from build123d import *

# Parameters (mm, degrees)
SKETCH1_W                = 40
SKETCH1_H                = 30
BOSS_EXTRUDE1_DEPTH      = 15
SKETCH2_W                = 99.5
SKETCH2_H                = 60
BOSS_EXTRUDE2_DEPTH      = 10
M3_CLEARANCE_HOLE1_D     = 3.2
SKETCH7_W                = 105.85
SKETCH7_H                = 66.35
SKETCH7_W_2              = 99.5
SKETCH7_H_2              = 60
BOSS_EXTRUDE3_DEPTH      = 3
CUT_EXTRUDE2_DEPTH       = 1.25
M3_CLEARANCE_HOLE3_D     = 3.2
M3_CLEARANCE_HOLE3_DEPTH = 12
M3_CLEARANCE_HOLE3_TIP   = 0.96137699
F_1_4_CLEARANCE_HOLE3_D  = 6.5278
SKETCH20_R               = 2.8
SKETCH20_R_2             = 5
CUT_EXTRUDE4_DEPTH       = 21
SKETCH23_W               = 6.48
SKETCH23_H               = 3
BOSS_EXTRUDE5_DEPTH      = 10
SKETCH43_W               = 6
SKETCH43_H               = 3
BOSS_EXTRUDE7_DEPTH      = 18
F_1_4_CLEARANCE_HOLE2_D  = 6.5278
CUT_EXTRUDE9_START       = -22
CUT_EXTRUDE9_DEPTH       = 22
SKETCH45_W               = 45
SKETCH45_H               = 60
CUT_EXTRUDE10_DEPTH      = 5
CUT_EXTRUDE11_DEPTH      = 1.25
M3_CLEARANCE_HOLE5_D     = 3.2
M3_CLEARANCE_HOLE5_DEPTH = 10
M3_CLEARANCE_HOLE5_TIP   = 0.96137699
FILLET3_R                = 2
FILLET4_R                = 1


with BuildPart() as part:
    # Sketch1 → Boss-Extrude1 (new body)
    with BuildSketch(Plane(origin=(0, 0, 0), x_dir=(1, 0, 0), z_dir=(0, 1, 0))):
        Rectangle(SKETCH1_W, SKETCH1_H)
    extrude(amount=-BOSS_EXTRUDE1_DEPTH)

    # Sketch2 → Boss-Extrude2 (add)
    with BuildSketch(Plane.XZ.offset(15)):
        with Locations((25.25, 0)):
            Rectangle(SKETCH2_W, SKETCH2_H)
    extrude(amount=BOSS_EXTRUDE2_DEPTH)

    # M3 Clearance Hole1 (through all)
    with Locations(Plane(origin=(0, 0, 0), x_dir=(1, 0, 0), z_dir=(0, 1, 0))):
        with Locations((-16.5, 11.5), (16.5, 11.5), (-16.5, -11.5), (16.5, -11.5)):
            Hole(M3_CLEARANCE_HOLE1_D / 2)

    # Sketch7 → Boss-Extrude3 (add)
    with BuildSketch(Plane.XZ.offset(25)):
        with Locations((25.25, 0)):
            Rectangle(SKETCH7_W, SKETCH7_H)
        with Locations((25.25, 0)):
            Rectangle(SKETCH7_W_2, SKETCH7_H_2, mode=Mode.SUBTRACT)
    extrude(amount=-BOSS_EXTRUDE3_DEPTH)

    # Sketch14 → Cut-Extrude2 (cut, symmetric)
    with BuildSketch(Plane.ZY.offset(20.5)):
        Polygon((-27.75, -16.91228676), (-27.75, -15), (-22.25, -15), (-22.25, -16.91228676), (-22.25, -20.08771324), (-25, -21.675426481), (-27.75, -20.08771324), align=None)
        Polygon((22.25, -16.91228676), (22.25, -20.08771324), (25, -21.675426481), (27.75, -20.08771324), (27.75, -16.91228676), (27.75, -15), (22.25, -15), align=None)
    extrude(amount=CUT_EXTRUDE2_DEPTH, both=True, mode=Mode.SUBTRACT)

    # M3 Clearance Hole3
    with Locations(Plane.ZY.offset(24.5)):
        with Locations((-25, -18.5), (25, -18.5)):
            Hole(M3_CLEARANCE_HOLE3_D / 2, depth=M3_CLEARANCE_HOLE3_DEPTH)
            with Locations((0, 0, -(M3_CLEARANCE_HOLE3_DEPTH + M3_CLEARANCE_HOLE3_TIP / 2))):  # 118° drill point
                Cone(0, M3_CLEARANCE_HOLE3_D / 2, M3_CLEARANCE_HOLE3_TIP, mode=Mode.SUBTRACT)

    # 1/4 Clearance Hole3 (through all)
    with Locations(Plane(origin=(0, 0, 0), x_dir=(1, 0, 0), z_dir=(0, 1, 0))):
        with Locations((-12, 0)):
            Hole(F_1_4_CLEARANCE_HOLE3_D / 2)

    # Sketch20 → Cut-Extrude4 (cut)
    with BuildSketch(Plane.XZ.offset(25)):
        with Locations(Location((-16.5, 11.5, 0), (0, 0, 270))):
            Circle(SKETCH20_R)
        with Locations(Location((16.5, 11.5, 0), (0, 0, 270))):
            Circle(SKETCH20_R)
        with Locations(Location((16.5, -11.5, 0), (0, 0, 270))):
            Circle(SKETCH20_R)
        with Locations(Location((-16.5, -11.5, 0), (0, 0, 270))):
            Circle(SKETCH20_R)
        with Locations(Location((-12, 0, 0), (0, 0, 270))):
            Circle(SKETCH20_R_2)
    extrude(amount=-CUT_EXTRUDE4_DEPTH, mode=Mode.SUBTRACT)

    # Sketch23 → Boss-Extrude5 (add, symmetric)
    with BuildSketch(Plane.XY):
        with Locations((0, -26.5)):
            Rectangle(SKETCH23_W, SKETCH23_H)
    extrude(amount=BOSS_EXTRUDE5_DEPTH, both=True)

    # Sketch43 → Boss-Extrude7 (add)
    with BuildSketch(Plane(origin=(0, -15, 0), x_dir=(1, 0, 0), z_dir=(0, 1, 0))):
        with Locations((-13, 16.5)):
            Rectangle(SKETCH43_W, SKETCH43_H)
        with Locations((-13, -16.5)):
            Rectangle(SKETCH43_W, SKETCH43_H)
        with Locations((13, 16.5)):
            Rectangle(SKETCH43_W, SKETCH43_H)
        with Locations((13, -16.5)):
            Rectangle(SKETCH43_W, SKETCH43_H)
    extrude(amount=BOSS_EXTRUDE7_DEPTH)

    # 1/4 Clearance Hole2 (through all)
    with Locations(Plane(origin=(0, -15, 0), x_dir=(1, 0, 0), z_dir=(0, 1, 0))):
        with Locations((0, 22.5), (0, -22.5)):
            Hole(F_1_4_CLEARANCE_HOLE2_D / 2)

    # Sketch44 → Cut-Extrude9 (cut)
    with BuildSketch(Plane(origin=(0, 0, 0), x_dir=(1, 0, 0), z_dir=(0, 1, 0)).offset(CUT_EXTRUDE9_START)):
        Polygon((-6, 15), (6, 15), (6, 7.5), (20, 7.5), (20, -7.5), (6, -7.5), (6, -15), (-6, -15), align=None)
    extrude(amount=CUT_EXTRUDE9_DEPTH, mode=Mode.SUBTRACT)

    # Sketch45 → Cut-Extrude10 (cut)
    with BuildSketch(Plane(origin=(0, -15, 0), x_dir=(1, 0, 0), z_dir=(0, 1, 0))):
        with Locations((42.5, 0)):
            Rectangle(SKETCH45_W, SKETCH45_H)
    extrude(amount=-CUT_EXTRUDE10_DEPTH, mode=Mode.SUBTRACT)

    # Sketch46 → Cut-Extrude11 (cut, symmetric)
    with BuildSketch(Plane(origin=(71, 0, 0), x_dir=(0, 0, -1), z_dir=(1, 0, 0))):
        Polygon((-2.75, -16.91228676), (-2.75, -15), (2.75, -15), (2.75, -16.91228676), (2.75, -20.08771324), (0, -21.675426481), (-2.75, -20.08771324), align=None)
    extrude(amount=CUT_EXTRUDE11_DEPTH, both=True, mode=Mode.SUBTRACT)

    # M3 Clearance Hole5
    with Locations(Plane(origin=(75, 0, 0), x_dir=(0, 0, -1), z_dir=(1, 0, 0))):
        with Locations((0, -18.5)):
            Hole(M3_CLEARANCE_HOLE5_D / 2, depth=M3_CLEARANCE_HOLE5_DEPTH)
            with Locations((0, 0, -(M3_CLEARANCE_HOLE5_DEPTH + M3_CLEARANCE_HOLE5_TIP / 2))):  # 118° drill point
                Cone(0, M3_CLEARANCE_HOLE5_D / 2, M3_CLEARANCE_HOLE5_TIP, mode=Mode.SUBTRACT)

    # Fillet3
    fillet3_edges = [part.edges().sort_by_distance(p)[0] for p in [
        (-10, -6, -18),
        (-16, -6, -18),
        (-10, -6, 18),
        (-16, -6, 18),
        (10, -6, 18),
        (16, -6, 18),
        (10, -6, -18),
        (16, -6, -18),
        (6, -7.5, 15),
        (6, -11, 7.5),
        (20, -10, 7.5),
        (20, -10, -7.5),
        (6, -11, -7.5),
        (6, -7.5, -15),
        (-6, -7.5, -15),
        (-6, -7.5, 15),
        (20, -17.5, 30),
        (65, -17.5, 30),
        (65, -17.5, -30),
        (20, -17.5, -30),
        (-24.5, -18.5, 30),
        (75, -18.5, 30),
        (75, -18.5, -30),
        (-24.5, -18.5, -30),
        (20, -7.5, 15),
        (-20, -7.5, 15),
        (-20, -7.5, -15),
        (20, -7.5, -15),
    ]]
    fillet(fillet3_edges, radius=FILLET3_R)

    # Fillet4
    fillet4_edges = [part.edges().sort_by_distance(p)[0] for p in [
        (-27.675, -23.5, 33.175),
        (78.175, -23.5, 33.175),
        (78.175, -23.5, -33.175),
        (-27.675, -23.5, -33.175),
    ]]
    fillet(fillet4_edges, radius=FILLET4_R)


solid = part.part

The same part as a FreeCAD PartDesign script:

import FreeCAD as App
import Part
import Sketcher
Q = App.Units.Quantity


def edges_at(feature, points):
    """Names of the edges that pass closest to the given points."""
    edges = feature.Shape.Edges
    near = lambda p: min(range(len(edges)), key=lambda i: edges[i].distToShape(Part.Vertex(*p))[0])
    return sorted({f"Edge{near(p) + 1}" for p in points})

doc = App.newDocument("Part")
body = doc.addObject("PartDesign::Body", "Body")

sketch1 = doc.addObject("Sketcher::SketchObject", "Sketch")
body.addObject(sketch1)
sketch1.AttachmentSupport = (doc.XZ_Plane, [""])
sketch1.MapMode = "FlatFace"
sketch1.addGeometry(Part.LineSegment(App.Vector(-20, -15, 0), App.Vector(-20, 15, 0)), False)
sketch1.addGeometry(Part.LineSegment(App.Vector(-20, 15, 0), App.Vector(20, 15, 0)), False)
sketch1.addGeometry(Part.LineSegment(App.Vector(20, 15, 0), App.Vector(20, -15, 0)), False)
sketch1.addGeometry(Part.LineSegment(App.Vector(20, -15, 0), App.Vector(-20, -15, 0)), False)
sketch1.addConstraint(Sketcher.Constraint("Coincident", 0, 2, 1, 1))
sketch1.addConstraint(Sketcher.Constraint("Coincident", 1, 2, 2, 1))
sketch1.addConstraint(Sketcher.Constraint("Coincident", 2, 2, 3, 1))
sketch1.addConstraint(Sketcher.Constraint("Coincident", 3, 2, 0, 1))
sketch1.addConstraint(Sketcher.Constraint("Vertical", 0))
sketch1.addConstraint(Sketcher.Constraint("Horizontal", 1))
sketch1.addConstraint(Sketcher.Constraint("Vertical", 2))
sketch1.addConstraint(Sketcher.Constraint("Horizontal", 3))
sketch1.addConstraint(Sketcher.Constraint("Symmetric", 0, 2, 2, 2, -1, 1))
sketch1.addConstraint(Sketcher.Constraint("DistanceX", 1, 1, 1, 2, 40.0))
sketch1.addConstraint(Sketcher.Constraint("DistanceY", 0, 1, 0, 2, 30.0))
pad1 = doc.addObject("PartDesign::Pad", "Pad")
body.addObject(pad1)
pad1.Profile = sketch1
pad1.Length = 15

sketch2 = doc.addObject("Sketcher::SketchObject", "Sketch001")
body.addObject(sketch2)
sketch2.AttachmentSupport = (doc.XZ_Plane, [""])
sketch2.MapMode = "FlatFace"
sketch2.AttachmentOffset = App.Placement(App.Vector(0, 0, 15), App.Rotation())
sketch2.addGeometry(Part.LineSegment(App.Vector(-24.5, 30, 0), App.Vector(-24.5, -30, 0)), False)
sketch2.addGeometry(Part.LineSegment(App.Vector(-24.5, -30, 0), App.Vector(75, -30, 0)), False)
sketch2.addGeometry(Part.LineSegment(App.Vector(75, -30, 0), App.Vector(75, 30, 0)), False)
sketch2.addGeometry(Part.LineSegment(App.Vector(75, 30, 0), App.Vector(-24.5, 30, 0)), False)
sketch2.addConstraint(Sketcher.Constraint("Coincident", 0, 2, 1, 1))
sketch2.addConstraint(Sketcher.Constraint("Coincident", 1, 2, 2, 1))
sketch2.addConstraint(Sketcher.Constraint("Coincident", 2, 2, 3, 1))
sketch2.addConstraint(Sketcher.Constraint("Coincident", 3, 2, 0, 1))
sketch2.addConstraint(Sketcher.Constraint("Vertical", 0))
sketch2.addConstraint(Sketcher.Constraint("Horizontal", 1))
sketch2.addConstraint(Sketcher.Constraint("Vertical", 2))
sketch2.addConstraint(Sketcher.Constraint("Horizontal", 3))
sketch2.addConstraint(Sketcher.Constraint("DistanceY", 0, 2, 0, 1, 60.0))
sketch2.addConstraint(Sketcher.Constraint("DistanceX", 1, 1, 1, 2, 99.5))
sketch2.addConstraint(Sketcher.Constraint("DistanceY", 0, 2, -1, 1, 30.0))
sketch2.addConstraint(Sketcher.Constraint("DistanceX", -1, 1, 1, 2, 75.0))
pad2 = doc.addObject("PartDesign::Pad", "Pad001")
body.addObject(pad2)
pad2.Profile = sketch2
pad2.Length = 10

sketch3 = doc.addObject("Sketcher::SketchObject", "Sketch002")
body.addObject(sketch3)
sketch3.AttachmentSupport = (doc.XZ_Plane, [""])
sketch3.MapMode = "FlatFace"
sketch3.addGeometry(Part.Circle(App.Vector(-16.5, -11.5, 0), App.Vector(0, 0, 1), 1.6), False)
sketch3.addGeometry(Part.Circle(App.Vector(16.5, -11.5, 0), App.Vector(0, 0, 1), 1.6), False)
sketch3.addGeometry(Part.Circle(App.Vector(-16.5, 11.5, 0), App.Vector(0, 0, 1), 1.6), False)
sketch3.addGeometry(Part.Circle(App.Vector(16.5, 11.5, 0), App.Vector(0, 0, 1), 1.6), False)
sketch3.addConstraint(Sketcher.Constraint("Equal", 0, 1))
sketch3.addConstraint(Sketcher.Constraint("Equal", 1, 2))
sketch3.addConstraint(Sketcher.Constraint("Equal", 2, 3))
sketch3.addConstraint(Sketcher.Constraint("Symmetric", 1, 3, 2, 3, -1, 1))
sketch3.addConstraint(Sketcher.Constraint("Symmetric", 0, 3, 3, 3, -1, 1))
sketch3.addConstraint(Sketcher.Constraint("Symmetric", 0, 3, 1, 3, -2))
sketch3.addConstraint(Sketcher.Constraint("Diameter", 0, 3.2))
sketch3.addConstraint(Sketcher.Constraint("DistanceX", 0, 3, 1, 3, 33.0))
sketch3.addConstraint(Sketcher.Constraint("DistanceY", 0, 3, 2, 3, 23.0))
doc.recompute()
hole = doc.addObject("PartDesign::Hole", "Hole")
body.addObject(hole)
hole.Profile = sketch3
hole.ThreadType = "None"
hole.Diameter = 3.2
hole.DepthType = "ThroughAll"
hole.Reversed = True

sketch4 = doc.addObject("Sketcher::SketchObject", "Sketch003")
body.addObject(sketch4)
sketch4.AttachmentSupport = (doc.XZ_Plane, [""])
sketch4.MapMode = "FlatFace"
sketch4.AttachmentOffset = App.Placement(App.Vector(0, 0, 25), App.Rotation())
sketch4.addGeometry(Part.LineSegment(App.Vector(-27.675, 33.175, 0), App.Vector(-27.675, -33.175, 0)), False)
sketch4.addGeometry(Part.LineSegment(App.Vector(-27.675, -33.175, 0), App.Vector(78.175, -33.175, 0)), False)
sketch4.addGeometry(Part.LineSegment(App.Vector(78.175, -33.175, 0), App.Vector(78.175, 33.175, 0)), False)
sketch4.addGeometry(Part.LineSegment(App.Vector(78.175, 33.175, 0), App.Vector(-27.675, 33.175, 0)), False)
sketch4.addGeometry(Part.LineSegment(App.Vector(75, -30, 0), App.Vector(-24.5, -30, 0)), False)
sketch4.addGeometry(Part.LineSegment(App.Vector(-24.5, -30, 0), App.Vector(-24.5, 30, 0)), False)
sketch4.addGeometry(Part.LineSegment(App.Vector(-24.5, 30, 0), App.Vector(75, 30, 0)), False)
sketch4.addGeometry(Part.LineSegment(App.Vector(75, 30, 0), App.Vector(75, -30, 0)), False)
sketch4.addConstraint(Sketcher.Constraint("Coincident", 0, 2, 1, 1))
sketch4.addConstraint(Sketcher.Constraint("Coincident", 1, 2, 2, 1))
sketch4.addConstraint(Sketcher.Constraint("Coincident", 2, 2, 3, 1))
sketch4.addConstraint(Sketcher.Constraint("Coincident", 3, 2, 0, 1))
sketch4.addConstraint(Sketcher.Constraint("Coincident", 4, 2, 5, 1))
sketch4.addConstraint(Sketcher.Constraint("Coincident", 5, 2, 6, 1))
sketch4.addConstraint(Sketcher.Constraint("Coincident", 6, 2, 7, 1))
sketch4.addConstraint(Sketcher.Constraint("Coincident", 7, 2, 4, 1))
sketch4.addConstraint(Sketcher.Constraint("Vertical", 0))
sketch4.addConstraint(Sketcher.Constraint("Horizontal", 1))
sketch4.addConstraint(Sketcher.Constraint("Vertical", 2))
sketch4.addConstraint(Sketcher.Constraint("Horizontal", 3))
sketch4.addConstraint(Sketcher.Constraint("Horizontal", 4))
sketch4.addConstraint(Sketcher.Constraint("Vertical", 5))
sketch4.addConstraint(Sketcher.Constraint("Horizontal", 6))
sketch4.addConstraint(Sketcher.Constraint("Vertical", 7))
sketch4.addConstraint(Sketcher.Constraint("DistanceY", 5, 1, 5, 2, 60.0))
sketch4.addConstraint(Sketcher.Constraint("DistanceX", 4, 2, 4, 1, 99.5))
sketch4.addConstraint(Sketcher.Constraint("DistanceY", 4, 2, -1, 1, 30.0))
sketch4.addConstraint(Sketcher.Constraint("DistanceX", -1, 1, 6, 2, 75.0))
sketch4.addConstraint(Sketcher.Constraint("DistanceX", 1, 1, 1, 2, 105.85))
sketch4.addConstraint(Sketcher.Constraint("DistanceY", 0, 2, 0, 1, 66.35))
sketch4.addConstraint(Sketcher.Constraint("DistanceX", 0, 2, -1, 1, 27.675))
sketch4.addConstraint(Sketcher.Constraint("DistanceY", 0, 2, -1, 1, 33.175))
pad3 = doc.addObject("PartDesign::Pad", "Pad002")
body.addObject(pad3)
pad3.Profile = sketch4
pad3.Length = 3
pad3.Reversed = True

sketch5 = doc.addObject("Sketcher::SketchObject", "Sketch004")
body.addObject(sketch5)
sketch5.AttachmentSupport = (doc.YZ_Plane, [""])
sketch5.MapMode = "FlatFace"
sketch5.AttachmentOffset = App.Placement(App.Vector(0, 0, -20.5), App.Rotation())
sketch5.addGeometry(Part.LineSegment(App.Vector(-15, -27.75, 0), App.Vector(-20.087713, -27.75, 0)), False)
sketch5.addGeometry(Part.LineSegment(App.Vector(-20.087713, -27.75, 0), App.Vector(-21.675426, -25, 0)), False)
sketch5.addGeometry(Part.LineSegment(App.Vector(-21.675426, -25, 0), App.Vector(-20.087713, -22.25, 0)), False)
sketch5.addGeometry(Part.LineSegment(App.Vector(-20.087713, -22.25, 0), App.Vector(-15, -22.25, 0)), False)
sketch5.addGeometry(Part.LineSegment(App.Vector(-15, -22.25, 0), App.Vector(-15, -27.75, 0)), False)
sketch5.addGeometry(Part.LineSegment(App.Vector(-20.087713, 22.25, 0), App.Vector(-21.675426, 25, 0)), False)
sketch5.addGeometry(Part.LineSegment(App.Vector(-21.675426, 25, 0), App.Vector(-20.087713, 27.75, 0)), False)
sketch5.addGeometry(Part.LineSegment(App.Vector(-20.087713, 27.75, 0), App.Vector(-15, 27.75, 0)), False)
sketch5.addGeometry(Part.LineSegment(App.Vector(-15, 27.75, 0), App.Vector(-15, 22.25, 0)), False)
sketch5.addGeometry(Part.LineSegment(App.Vector(-15, 22.25, 0), App.Vector(-20.087713, 22.25, 0)), False)
sketch5.addConstraint(Sketcher.Constraint("Coincident", 0, 2, 1, 1))
sketch5.addConstraint(Sketcher.Constraint("Coincident", 1, 2, 2, 1))
sketch5.addConstraint(Sketcher.Constraint("Coincident", 2, 2, 3, 1))
sketch5.addConstraint(Sketcher.Constraint("Coincident", 3, 2, 4, 1))
sketch5.addConstraint(Sketcher.Constraint("Coincident", 4, 2, 0, 1))
sketch5.addConstraint(Sketcher.Constraint("Coincident", 5, 2, 6, 1))
sketch5.addConstraint(Sketcher.Constraint("Coincident", 6, 2, 7, 1))
sketch5.addConstraint(Sketcher.Constraint("Coincident", 7, 2, 8, 1))
sketch5.addConstraint(Sketcher.Constraint("Coincident", 8, 2, 9, 1))
sketch5.addConstraint(Sketcher.Constraint("Coincident", 9, 2, 5, 1))
sketch5.addConstraint(Sketcher.Constraint("Horizontal", 0))
sketch5.addConstraint(Sketcher.Constraint("Horizontal", 3))
sketch5.addConstraint(Sketcher.Constraint("Vertical", 4))
sketch5.addConstraint(Sketcher.Constraint("Horizontal", 7))
sketch5.addConstraint(Sketcher.Constraint("Vertical", 8))
sketch5.addConstraint(Sketcher.Constraint("Horizontal", 9))
sketch5.addConstraint(Sketcher.Constraint("Symmetric", 1, 2, 5, 2, -1))
sketch5.addConstraint(Sketcher.Constraint("Symmetric", 0, 2, 6, 2, -1))
sketch5.addConstraint(Sketcher.Constraint("Symmetric", 3, 2, 8, 2, -1))
sketch5.addConstraint(Sketcher.Constraint("Parallel", 1, 5))
sketch5.addConstraint(Sketcher.Constraint("Parallel", 2, 6))
sketch5.addConstraint(Sketcher.Constraint("Vertical", 0, 2, 2, 2))
sketch5.addConstraint(Sketcher.Constraint("Angle", 1, Q("120 deg")))
sketch5.addConstraint(Sketcher.Constraint("DistanceY", 4, 2, 4, 1, 5.5))
sketch5.addConstraint(Sketcher.Constraint("DistanceY", 1, 2, -1, 1, 25.0))
sketch5.addConstraint(Sketcher.Constraint("DistanceX", 3, 2, -1, 1, 15.0))
sketch5.addConstraint(Sketcher.Constraint("DistanceX", 0, 2, 0, 1, 5.087713))
pocket1 = doc.addObject("PartDesign::Pocket", "Pocket")
body.addObject(pocket1)
pocket1.Profile = sketch5
pocket1.Length = 2.5
pocket1.Midplane = True

sketch6 = doc.addObject("Sketcher::SketchObject", "Sketch005")
body.addObject(sketch6)
sketch6.AttachmentSupport = (doc.YZ_Plane, [""])
sketch6.MapMode = "FlatFace"
sketch6.AttachmentOffset = App.Placement(App.Vector(0, 0, -24.5), App.Rotation())
sketch6.addGeometry(Part.Circle(App.Vector(-18.5, -25, 0), App.Vector(0, 0, 1), 1.6), False)
sketch6.addGeometry(Part.Circle(App.Vector(-18.5, 25, 0), App.Vector(0, 0, 1), 1.6), False)
sketch6.addConstraint(Sketcher.Constraint("Equal", 0, 1))
sketch6.addConstraint(Sketcher.Constraint("Symmetric", 0, 3, 1, 3, -1))
sketch6.addConstraint(Sketcher.Constraint("Diameter", 0, 3.2))
sketch6.addConstraint(Sketcher.Constraint("DistanceY", 0, 3, -1, 1, 25.0))
sketch6.addConstraint(Sketcher.Constraint("DistanceX", 0, 3, -1, 1, 18.5))
doc.recompute()
hole2 = doc.addObject("PartDesign::Hole", "Hole001")
body.addObject(hole2)
hole2.Profile = sketch6
hole2.ThreadType = "None"
hole2.Diameter = 3.2
hole2.DepthType = "Dimension"
hole2.Depth = 12
hole2.DrillPoint = "Angled"
hole2.DrillPointAngle = 118
hole2.Reversed = True

sketch7 = doc.addObject("Sketcher::SketchObject", "Sketch006")
body.addObject(sketch7)
sketch7.AttachmentSupport = (doc.XZ_Plane, [""])
sketch7.MapMode = "FlatFace"
sketch7.addGeometry(Part.Circle(App.Vector(-12, 0, 0), App.Vector(0, 0, 1), 3.2639), False)
sketch7.addConstraint(Sketcher.Constraint("PointOnObject", 0, 3, -1))
sketch7.addConstraint(Sketcher.Constraint("DistanceX", 0, 3, -1, 1, 12.0))
sketch7.addConstraint(Sketcher.Constraint("Diameter", 0, 6.5278))
doc.recompute()
hole3 = doc.addObject("PartDesign::Hole", "Hole002")
body.addObject(hole3)
hole3.Profile = sketch7
hole3.ThreadType = "None"
hole3.Diameter = 6.5278
hole3.DepthType = "ThroughAll"
hole3.Reversed = True

sketch8 = doc.addObject("Sketcher::SketchObject", "Sketch007")
body.addObject(sketch8)
sketch8.AttachmentSupport = (doc.XZ_Plane, [""])
sketch8.MapMode = "FlatFace"
sketch8.AttachmentOffset = App.Placement(App.Vector(0, 0, 25), App.Rotation())
sketch8.addGeometry(Part.Circle(App.Vector(-16.5, 11.5, 0), App.Vector(0, 0, 1), 2.8), False)
sketch8.addGeometry(Part.Circle(App.Vector(16.5, 11.5, 0), App.Vector(0, 0, 1), 2.8), False)
sketch8.addGeometry(Part.Circle(App.Vector(16.5, -11.5, 0), App.Vector(0, 0, 1), 2.8), False)
sketch8.addGeometry(Part.Circle(App.Vector(-16.5, -11.5, 0), App.Vector(0, 0, 1), 2.8), False)
sketch8.addGeometry(Part.Circle(App.Vector(-12, 0, 0), App.Vector(0, 0, 1), 5), False)
sketch8.addConstraint(Sketcher.Constraint("Equal", 0, 1))
sketch8.addConstraint(Sketcher.Constraint("Equal", 1, 2))
sketch8.addConstraint(Sketcher.Constraint("Equal", 2, 3))
sketch8.addConstraint(Sketcher.Constraint("Symmetric", 0, 3, 2, 3, -1, 1))
sketch8.addConstraint(Sketcher.Constraint("Symmetric", 1, 3, 3, 3, -1, 1))
sketch8.addConstraint(Sketcher.Constraint("Symmetric", 0, 3, 1, 3, -2))
sketch8.addConstraint(Sketcher.Constraint("PointOnObject", 4, 3, -1))
sketch8.addConstraint(Sketcher.Constraint("Diameter", 4, 10.0))
sketch8.addConstraint(Sketcher.Constraint("Diameter", 0, 5.6))
sketch8.addConstraint(Sketcher.Constraint("DistanceX", 4, 3, -1, 1, 12.0))
sketch8.addConstraint(Sketcher.Constraint("DistanceX", 0, 3, 1, 3, 33.0))
sketch8.addConstraint(Sketcher.Constraint("DistanceY", 2, 3, 1, 3, 23.0))
pocket2 = doc.addObject("PartDesign::Pocket", "Pocket001")
body.addObject(pocket2)
pocket2.Profile = sketch8
pocket2.Length = 21

sketch9 = doc.addObject("Sketcher::SketchObject", "Sketch008")
body.addObject(sketch9)
sketch9.AttachmentSupport = (doc.XY_Plane, [""])
sketch9.MapMode = "FlatFace"
sketch9.addGeometry(Part.LineSegment(App.Vector(-3.24, -25, 0), App.Vector(-3.24, -28, 0)), False)
sketch9.addGeometry(Part.LineSegment(App.Vector(-3.24, -28, 0), App.Vector(3.24, -28, 0)), False)
sketch9.addGeometry(Part.LineSegment(App.Vector(3.24, -28, 0), App.Vector(3.24, -25, 0)), False)
sketch9.addGeometry(Part.LineSegment(App.Vector(3.24, -25, 0), App.Vector(-3.24, -25, 0)), False)
sketch9.addConstraint(Sketcher.Constraint("Coincident", 0, 2, 1, 1))
sketch9.addConstraint(Sketcher.Constraint("Coincident", 1, 2, 2, 1))
sketch9.addConstraint(Sketcher.Constraint("Coincident", 2, 2, 3, 1))
sketch9.addConstraint(Sketcher.Constraint("Coincident", 3, 2, 0, 1))
sketch9.addConstraint(Sketcher.Constraint("Vertical", 0))
sketch9.addConstraint(Sketcher.Constraint("Horizontal", 1))
sketch9.addConstraint(Sketcher.Constraint("Vertical", 2))
sketch9.addConstraint(Sketcher.Constraint("Horizontal", 3))
sketch9.addConstraint(Sketcher.Constraint("DistanceY", 0, 2, 0, 1, 3.0))
sketch9.addConstraint(Sketcher.Constraint("DistanceY", 0, 2, -1, 1, 28.0))
sketch9.addConstraint(Sketcher.Constraint("DistanceX", 1, 1, 1, 2, 6.48))
sketch9.addConstraint(Sketcher.Constraint("DistanceX", 0, 2, -1, 1, 3.24))
pad4 = doc.addObject("PartDesign::Pad", "Pad003")
body.addObject(pad4)
pad4.Profile = sketch9
pad4.Length = 20
pad4.Midplane = True

sketch10 = doc.addObject("Sketcher::SketchObject", "Sketch009")
body.addObject(sketch10)
sketch10.AttachmentSupport = (doc.XZ_Plane, [""])
sketch10.MapMode = "FlatFace"
sketch10.AttachmentOffset = App.Placement(App.Vector(0, 0, 15), App.Rotation())
sketch10.addGeometry(Part.LineSegment(App.Vector(-16, -18, 0), App.Vector(-16, -15, 0)), False)
sketch10.addGeometry(Part.LineSegment(App.Vector(-16, -15, 0), App.Vector(-10, -15, 0)), False)
sketch10.addGeometry(Part.LineSegment(App.Vector(-10, -15, 0), App.Vector(-10, -18, 0)), False)
sketch10.addGeometry(Part.LineSegment(App.Vector(-10, -18, 0), App.Vector(-16, -18, 0)), False)
sketch10.addGeometry(Part.LineSegment(App.Vector(-16, 15, 0), App.Vector(-16, 18, 0)), False)
sketch10.addGeometry(Part.LineSegment(App.Vector(-16, 18, 0), App.Vector(-10, 18, 0)), False)
sketch10.addGeometry(Part.LineSegment(App.Vector(-10, 18, 0), App.Vector(-10, 15, 0)), False)
sketch10.addGeometry(Part.LineSegment(App.Vector(-10, 15, 0), App.Vector(-16, 15, 0)), False)
sketch10.addGeometry(Part.LineSegment(App.Vector(10, -18, 0), App.Vector(10, -15, 0)), False)
sketch10.addGeometry(Part.LineSegment(App.Vector(10, -15, 0), App.Vector(16, -15, 0)), False)
sketch10.addGeometry(Part.LineSegment(App.Vector(16, -15, 0), App.Vector(16, -18, 0)), False)
sketch10.addGeometry(Part.LineSegment(App.Vector(16, -18, 0), App.Vector(10, -18, 0)), False)
sketch10.addGeometry(Part.LineSegment(App.Vector(10, 15, 0), App.Vector(10, 18, 0)), False)
sketch10.addGeometry(Part.LineSegment(App.Vector(10, 18, 0), App.Vector(16, 18, 0)), False)
sketch10.addGeometry(Part.LineSegment(App.Vector(16, 18, 0), App.Vector(16, 15, 0)), False)
sketch10.addGeometry(Part.LineSegment(App.Vector(16, 15, 0), App.Vector(10, 15, 0)), False)
sketch10.addConstraint(Sketcher.Constraint("Coincident", 0, 2, 1, 1))
sketch10.addConstraint(Sketcher.Constraint("Coincident", 1, 2, 2, 1))
sketch10.addConstraint(Sketcher.Constraint("Coincident", 2, 2, 3, 1))
sketch10.addConstraint(Sketcher.Constraint("Coincident", 3, 2, 0, 1))
sketch10.addConstraint(Sketcher.Constraint("Coincident", 4, 2, 5, 1))
sketch10.addConstraint(Sketcher.Constraint("Coincident", 5, 2, 6, 1))
sketch10.addConstraint(Sketcher.Constraint("Coincident", 6, 2, 7, 1))
sketch10.addConstraint(Sketcher.Constraint("Coincident", 7, 2, 4, 1))
sketch10.addConstraint(Sketcher.Constraint("Coincident", 8, 2, 9, 1))
sketch10.addConstraint(Sketcher.Constraint("Coincident", 9, 2, 10, 1))
sketch10.addConstraint(Sketcher.Constraint("Coincident", 10, 2, 11, 1))
sketch10.addConstraint(Sketcher.Constraint("Coincident", 11, 2, 8, 1))
sketch10.addConstraint(Sketcher.Constraint("Coincident", 12, 2, 13, 1))
sketch10.addConstraint(Sketcher.Constraint("Coincident", 13, 2, 14, 1))
sketch10.addConstraint(Sketcher.Constraint("Coincident", 14, 2, 15, 1))
sketch10.addConstraint(Sketcher.Constraint("Coincident", 15, 2, 12, 1))
sketch10.addConstraint(Sketcher.Constraint("Vertical", 0))
sketch10.addConstraint(Sketcher.Constraint("Horizontal", 1))
sketch10.addConstraint(Sketcher.Constraint("Vertical", 2))
sketch10.addConstraint(Sketcher.Constraint("Horizontal", 3))
sketch10.addConstraint(Sketcher.Constraint("Vertical", 4))
sketch10.addConstraint(Sketcher.Constraint("Horizontal", 5))
sketch10.addConstraint(Sketcher.Constraint("Vertical", 6))
sketch10.addConstraint(Sketcher.Constraint("Horizontal", 7))
sketch10.addConstraint(Sketcher.Constraint("Vertical", 8))
sketch10.addConstraint(Sketcher.Constraint("Horizontal", 9))
sketch10.addConstraint(Sketcher.Constraint("Vertical", 10))
sketch10.addConstraint(Sketcher.Constraint("Horizontal", 11))
sketch10.addConstraint(Sketcher.Constraint("Vertical", 12))
sketch10.addConstraint(Sketcher.Constraint("Horizontal", 13))
sketch10.addConstraint(Sketcher.Constraint("Vertical", 14))
sketch10.addConstraint(Sketcher.Constraint("Horizontal", 15))
sketch10.addConstraint(Sketcher.Constraint("Symmetric", 6, 2, 8, 2, -1, 1))
sketch10.addConstraint(Sketcher.Constraint("Symmetric", 4, 2, 10, 2, -1, 1))
sketch10.addConstraint(Sketcher.Constraint("Symmetric", 2, 2, 12, 2, -1, 1))
sketch10.addConstraint(Sketcher.Constraint("Symmetric", 0, 2, 14, 2, -1, 1))
sketch10.addConstraint(Sketcher.Constraint("Symmetric", 1, 2, 8, 2, -2))
sketch10.addConstraint(Sketcher.Constraint("Symmetric", 3, 2, 10, 2, -2))
sketch10.addConstraint(Sketcher.Constraint("DistanceX", 1, 1, 1, 2, 6.0))
sketch10.addConstraint(Sketcher.Constraint("DistanceY", 0, 1, 0, 2, 3.0))
sketch10.addConstraint(Sketcher.Constraint("DistanceX", 0, 2, -1, 1, 16.0))
sketch10.addConstraint(Sketcher.Constraint("DistanceY", 0, 2, -1, 1, 15.0))
pad5 = doc.addObject("PartDesign::Pad", "Pad004")
body.addObject(pad5)
pad5.Profile = sketch10
pad5.Length = 18
pad5.Reversed = True

sketch11 = doc.addObject("Sketcher::SketchObject", "Sketch010")
body.addObject(sketch11)
sketch11.AttachmentSupport = (doc.XZ_Plane, [""])
sketch11.MapMode = "FlatFace"
sketch11.AttachmentOffset = App.Placement(App.Vector(0, 0, 15), App.Rotation())
sketch11.addGeometry(Part.Circle(App.Vector(0, -22.5, 0), App.Vector(0, 0, 1), 3.2639), False)
sketch11.addGeometry(Part.Circle(App.Vector(0, 22.5, 0), App.Vector(0, 0, 1), 3.2639), False)
sketch11.addConstraint(Sketcher.Constraint("Equal", 0, 1))
sketch11.addConstraint(Sketcher.Constraint("Symmetric", 0, 3, 1, 3, -1, 1))
sketch11.addConstraint(Sketcher.Constraint("PointOnObject", 0, 3, -2))
sketch11.addConstraint(Sketcher.Constraint("DistanceY", 0, 3, 1, 3, 45.0))
sketch11.addConstraint(Sketcher.Constraint("Diameter", 0, 6.5278))
doc.recompute()
hole4 = doc.addObject("PartDesign::Hole", "Hole003")
body.addObject(hole4)
hole4.Profile = sketch11
hole4.ThreadType = "None"
hole4.Diameter = 6.5278
hole4.DepthType = "ThroughAll"
hole4.Reversed = True

sketch12 = doc.addObject("Sketcher::SketchObject", "Sketch011")
body.addObject(sketch12)
sketch12.AttachmentSupport = (doc.XZ_Plane, [""])
sketch12.MapMode = "FlatFace"
sketch12.AttachmentOffset = App.Placement(App.Vector(0, 0, 22), App.Rotation())
sketch12.addGeometry(Part.LineSegment(App.Vector(6, -15, 0), App.Vector(-6, -15, 0)), False)
sketch12.addGeometry(Part.LineSegment(App.Vector(-6, -15, 0), App.Vector(-6, 15, 0)), False)
sketch12.addGeometry(Part.LineSegment(App.Vector(-6, 15, 0), App.Vector(6, 15, 0)), False)
sketch12.addGeometry(Part.LineSegment(App.Vector(6, 15, 0), App.Vector(6, 7.5, 0)), False)
sketch12.addGeometry(Part.LineSegment(App.Vector(6, 7.5, 0), App.Vector(20, 7.5, 0)), False)
sketch12.addGeometry(Part.LineSegment(App.Vector(20, 7.5, 0), App.Vector(20, -7.5, 0)), False)
sketch12.addGeometry(Part.LineSegment(App.Vector(20, -7.5, 0), App.Vector(6, -7.5, 0)), False)
sketch12.addGeometry(Part.LineSegment(App.Vector(6, -7.5, 0), App.Vector(6, -15, 0)), False)
sketch12.addConstraint(Sketcher.Constraint("Coincident", 0, 2, 1, 1))
sketch12.addConstraint(Sketcher.Constraint("Coincident", 1, 2, 2, 1))
sketch12.addConstraint(Sketcher.Constraint("Coincident", 2, 2, 3, 1))
sketch12.addConstraint(Sketcher.Constraint("Coincident", 3, 2, 4, 1))
sketch12.addConstraint(Sketcher.Constraint("Coincident", 4, 2, 5, 1))
sketch12.addConstraint(Sketcher.Constraint("Coincident", 5, 2, 6, 1))
sketch12.addConstraint(Sketcher.Constraint("Coincident", 6, 2, 7, 1))
sketch12.addConstraint(Sketcher.Constraint("Coincident", 7, 2, 0, 1))
sketch12.addConstraint(Sketcher.Constraint("Horizontal", 0))
sketch12.addConstraint(Sketcher.Constraint("Vertical", 1))
sketch12.addConstraint(Sketcher.Constraint("Horizontal", 2))
sketch12.addConstraint(Sketcher.Constraint("Vertical", 3))
sketch12.addConstraint(Sketcher.Constraint("Horizontal", 4))
sketch12.addConstraint(Sketcher.Constraint("Vertical", 5))
sketch12.addConstraint(Sketcher.Constraint("Horizontal", 6))
sketch12.addConstraint(Sketcher.Constraint("Vertical", 7))
sketch12.addConstraint(Sketcher.Constraint("Symmetric", 0, 2, 2, 2, -1, 1))
sketch12.addConstraint(Sketcher.Constraint("Symmetric", 3, 2, 6, 2, -1))
sketch12.addConstraint(Sketcher.Constraint("DistanceX", 0, 2, 0, 1, 12.0))
sketch12.addConstraint(Sketcher.Constraint("DistanceX", 4, 1, 4, 2, 14.0))
sketch12.addConstraint(Sketcher.Constraint("DistanceY", 1, 1, 1, 2, 30.0))
sketch12.addConstraint(Sketcher.Constraint("DistanceY", 5, 2, 5, 1, 15.0))
pocket3 = doc.addObject("PartDesign::Pocket", "Pocket002")
body.addObject(pocket3)
pocket3.Profile = sketch12
pocket3.Length = 22

sketch13 = doc.addObject("Sketcher::SketchObject", "Sketch012")
body.addObject(sketch13)
sketch13.AttachmentSupport = (doc.XZ_Plane, [""])
sketch13.MapMode = "FlatFace"
sketch13.AttachmentOffset = App.Placement(App.Vector(0, 0, 15), App.Rotation())
sketch13.addGeometry(Part.LineSegment(App.Vector(20, -30, 0), App.Vector(20, 30, 0)), False)
sketch13.addGeometry(Part.LineSegment(App.Vector(20, 30, 0), App.Vector(65, 30, 0)), False)
sketch13.addGeometry(Part.LineSegment(App.Vector(65, 30, 0), App.Vector(65, -30, 0)), False)
sketch13.addGeometry(Part.LineSegment(App.Vector(65, -30, 0), App.Vector(20, -30, 0)), False)
sketch13.addConstraint(Sketcher.Constraint("Coincident", 0, 2, 1, 1))
sketch13.addConstraint(Sketcher.Constraint("Coincident", 1, 2, 2, 1))
sketch13.addConstraint(Sketcher.Constraint("Coincident", 2, 2, 3, 1))
sketch13.addConstraint(Sketcher.Constraint("Coincident", 3, 2, 0, 1))
sketch13.addConstraint(Sketcher.Constraint("Vertical", 0))
sketch13.addConstraint(Sketcher.Constraint("Horizontal", 1))
sketch13.addConstraint(Sketcher.Constraint("Vertical", 2))
sketch13.addConstraint(Sketcher.Constraint("Horizontal", 3))
sketch13.addConstraint(Sketcher.Constraint("DistanceX", 1, 1, 1, 2, 45.0))
sketch13.addConstraint(Sketcher.Constraint("DistanceY", 0, 1, 0, 2, 60.0))
sketch13.addConstraint(Sketcher.Constraint("DistanceX", -1, 1, 0, 2, 20.0))
sketch13.addConstraint(Sketcher.Constraint("DistanceY", -1, 1, 0, 2, 30.0))
pocket4 = doc.addObject("PartDesign::Pocket", "Pocket003")
body.addObject(pocket4)
pocket4.Profile = sketch13
pocket4.Length = 5
pocket4.Reversed = True

sketch14 = doc.addObject("Sketcher::SketchObject", "Sketch013")
body.addObject(sketch14)
sketch14.AttachmentSupport = (doc.YZ_Plane, [""])
sketch14.MapMode = "FlatFace"
sketch14.AttachmentOffset = App.Placement(App.Vector(0, 0, 71), App.Rotation())
sketch14.addGeometry(Part.LineSegment(App.Vector(-15, 2.75, 0), App.Vector(-20.087713, 2.75, 0)), False)
sketch14.addGeometry(Part.LineSegment(App.Vector(-20.087713, 2.75, 0), App.Vector(-21.675426, 0, 0)), False)
sketch14.addGeometry(Part.LineSegment(App.Vector(-21.675426, 0, 0), App.Vector(-20.087713, -2.75, 0)), False)
sketch14.addGeometry(Part.LineSegment(App.Vector(-20.087713, -2.75, 0), App.Vector(-15, -2.75, 0)), False)
sketch14.addGeometry(Part.LineSegment(App.Vector(-15, -2.75, 0), App.Vector(-15, 2.75, 0)), False)
sketch14.addConstraint(Sketcher.Constraint("Coincident", 0, 2, 1, 1))
sketch14.addConstraint(Sketcher.Constraint("Coincident", 1, 2, 2, 1))
sketch14.addConstraint(Sketcher.Constraint("Coincident", 2, 2, 3, 1))
sketch14.addConstraint(Sketcher.Constraint("Coincident", 3, 2, 4, 1))
sketch14.addConstraint(Sketcher.Constraint("Coincident", 4, 2, 0, 1))
sketch14.addConstraint(Sketcher.Constraint("Horizontal", 0))
sketch14.addConstraint(Sketcher.Constraint("Horizontal", 3))
sketch14.addConstraint(Sketcher.Constraint("Vertical", 4))
sketch14.addConstraint(Sketcher.Constraint("Symmetric", 0, 2, 2, 2, -1))
sketch14.addConstraint(Sketcher.Constraint("PointOnObject", 1, 2, -1))
sketch14.addConstraint(Sketcher.Constraint("Angle", 1, Q("-120 deg")))
sketch14.addConstraint(Sketcher.Constraint("DistanceY", 4, 1, 4, 2, 5.5))
sketch14.addConstraint(Sketcher.Constraint("DistanceX", 3, 2, -1, 1, 15.0))
sketch14.addConstraint(Sketcher.Constraint("DistanceX", 0, 2, 0, 1, 5.087713))
pocket5 = doc.addObject("PartDesign::Pocket", "Pocket004")
body.addObject(pocket5)
pocket5.Profile = sketch14
pocket5.Length = 2.5
pocket5.Midplane = True

sketch15 = doc.addObject("Sketcher::SketchObject", "Sketch014")
body.addObject(sketch15)
sketch15.AttachmentSupport = (doc.YZ_Plane, [""])
sketch15.MapMode = "FlatFace"
sketch15.AttachmentOffset = App.Placement(App.Vector(0, 0, 75), App.Rotation())
sketch15.addGeometry(Part.Circle(App.Vector(-18.5, 0, 0), App.Vector(0, 0, 1), 1.6), False)
sketch15.addConstraint(Sketcher.Constraint("PointOnObject", 0, 3, -1))
sketch15.addConstraint(Sketcher.Constraint("Diameter", 0, 3.2))
sketch15.addConstraint(Sketcher.Constraint("DistanceX", 0, 3, -1, 1, 18.5))
doc.recompute()
hole5 = doc.addObject("PartDesign::Hole", "Hole004")
body.addObject(hole5)
hole5.Profile = sketch15
hole5.ThreadType = "None"
hole5.Diameter = 3.2
hole5.DepthType = "Dimension"
hole5.Depth = 10
hole5.DrillPoint = "Angled"
hole5.DrillPointAngle = 118
doc.recompute()

fillet = doc.addObject("PartDesign::Fillet", "Fillet")
body.addObject(fillet)
fillet.Base = (hole5, edges_at(hole5, [
    (-10, -6, -18),
    (-16, -6, -18),
    (-10, -6, 18),
    (-16, -6, 18),
    (10, -6, 18),
    (16, -6, 18),
    (10, -6, -18),
    (16, -6, -18),
    (6, -7.5, 15),
    (6, -11, 7.5),
    (20, -10, 7.5),
    (20, -10, -7.5),
    (6, -11, -7.5),
    (6, -7.5, -15),
    (-6, -7.5, -15),
    (-6, -7.5, 15),
    (20, -17.5, 30),
    (65, -17.5, 30),
    (65, -17.5, -30),
    (20, -17.5, -30),
    (-24.5, -18.5, 30),
    (75, -18.5, 30),
    (75, -18.5, -30),
    (-24.5, -18.5, -30),
    (20, -7.5, 15),
    (-20, -7.5, 15),
    (-20, -7.5, -15),
    (20, -7.5, -15),
]))
fillet.Radius = 2
doc.recompute()

fillet2 = doc.addObject("PartDesign::Fillet", "Fillet001")
body.addObject(fillet2)
fillet2.Base = (fillet, edges_at(fillet, [
    (-27.675, -23.5, 33.175),
    (78.175, -23.5, 33.175),
    (78.175, -23.5, -33.175),
    (-27.675, -23.5, -33.175),
]))
fillet2.Radius = 1

doc.recompute()
